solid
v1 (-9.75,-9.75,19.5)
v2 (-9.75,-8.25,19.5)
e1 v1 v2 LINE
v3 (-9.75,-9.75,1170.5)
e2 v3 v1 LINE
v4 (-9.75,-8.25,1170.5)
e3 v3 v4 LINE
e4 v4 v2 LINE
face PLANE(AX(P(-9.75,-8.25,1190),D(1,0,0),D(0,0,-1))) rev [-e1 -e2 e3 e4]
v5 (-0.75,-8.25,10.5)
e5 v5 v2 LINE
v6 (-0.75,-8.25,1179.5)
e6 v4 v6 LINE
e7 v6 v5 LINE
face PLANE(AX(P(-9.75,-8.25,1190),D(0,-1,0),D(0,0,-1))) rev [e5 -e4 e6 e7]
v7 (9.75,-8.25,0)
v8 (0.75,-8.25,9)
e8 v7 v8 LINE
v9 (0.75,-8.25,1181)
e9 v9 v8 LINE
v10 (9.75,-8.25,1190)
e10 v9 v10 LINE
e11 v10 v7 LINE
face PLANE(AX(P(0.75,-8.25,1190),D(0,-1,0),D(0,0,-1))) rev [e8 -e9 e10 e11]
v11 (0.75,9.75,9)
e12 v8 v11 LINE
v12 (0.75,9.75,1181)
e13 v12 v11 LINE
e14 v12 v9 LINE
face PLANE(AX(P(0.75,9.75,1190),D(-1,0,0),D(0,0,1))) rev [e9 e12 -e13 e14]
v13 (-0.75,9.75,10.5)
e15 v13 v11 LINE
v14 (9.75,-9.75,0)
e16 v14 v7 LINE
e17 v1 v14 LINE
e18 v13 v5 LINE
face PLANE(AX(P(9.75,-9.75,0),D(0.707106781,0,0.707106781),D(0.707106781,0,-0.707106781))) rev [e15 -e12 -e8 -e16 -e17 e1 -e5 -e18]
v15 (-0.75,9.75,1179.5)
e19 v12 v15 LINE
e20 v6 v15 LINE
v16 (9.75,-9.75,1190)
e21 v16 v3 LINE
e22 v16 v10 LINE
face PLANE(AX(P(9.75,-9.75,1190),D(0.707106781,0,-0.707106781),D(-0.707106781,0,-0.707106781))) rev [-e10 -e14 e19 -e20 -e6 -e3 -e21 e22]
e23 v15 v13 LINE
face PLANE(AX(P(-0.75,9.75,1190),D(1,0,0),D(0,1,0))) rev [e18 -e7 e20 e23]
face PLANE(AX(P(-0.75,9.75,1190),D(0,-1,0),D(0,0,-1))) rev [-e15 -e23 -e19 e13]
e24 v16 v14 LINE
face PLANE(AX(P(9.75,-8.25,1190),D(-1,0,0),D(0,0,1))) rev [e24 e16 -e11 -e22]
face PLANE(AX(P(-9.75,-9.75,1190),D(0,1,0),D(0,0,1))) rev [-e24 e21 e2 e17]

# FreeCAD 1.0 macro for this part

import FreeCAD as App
import Part
import Sketcher

doc = App.newDocument("Part")
body = doc.addObject("PartDesign::Body", "Body")

# Sketch on XY plane
sketch1 = body.newObject("Sketcher::SketchObject", "Sketch")
sketch1.AttachmentSupport = (doc.getObject("XY_Plane"), [""])
sketch1.MapMode = "FlatFace"
sketch1.addGeometry([
    Part.LineSegment(App.Vector(-9.8, -9.8, 0), App.Vector(9.8, -9.8, 0)),  # 0
    Part.LineSegment(App.Vector(9.8, -9.8, 0), App.Vector(9.8, -8.2, 0)),  # 1
    Part.LineSegment(App.Vector(9.8, -8.2, 0), App.Vector(0.8, -8.2, 0)),  # 2
    Part.LineSegment(App.Vector(0.8, -8.2, 0), App.Vector(0.8, 9.8, 0)),  # 3
    Part.LineSegment(App.Vector(0.8, 9.8, 0), App.Vector(-0.8, 9.8, 0)),  # 4
    Part.LineSegment(App.Vector(-0.8, 9.8, 0), App.Vector(-0.8, -8.2, 0)),  # 5
    Part.LineSegment(App.Vector(-0.8, -8.2, 0), App.Vector(-9.8, -8.2, 0)),  # 6
    Part.LineSegment(App.Vector(-9.8, -8.2, 0), App.Vector(-9.8, -9.8, 0)),  # 7
], False)
sketch1.addConstraint([
    Sketcher.Constraint("Coincident", 0, 2, 1, 1),
    Sketcher.Constraint("Coincident", 1, 2, 2, 1),
    Sketcher.Constraint("Coincident", 2, 2, 3, 1),
    Sketcher.Constraint("Coincident", 3, 2, 4, 1),
    Sketcher.Constraint("Coincident", 4, 2, 5, 1),
    Sketcher.Constraint("Coincident", 5, 2, 6, 1),
    Sketcher.Constraint("Coincident", 6, 2, 7, 1),
    Sketcher.Constraint("Coincident", 7, 2, 0, 1),
    Sketcher.Constraint("Horizontal", 0),
    Sketcher.Constraint("Vertical", 1),
    Sketcher.Constraint("Horizontal", 2),
    Sketcher.Constraint("Vertical", 3),
    Sketcher.Constraint("Horizontal", 4),
    Sketcher.Constraint("Vertical", 5),
    Sketcher.Constraint("Horizontal", 6),
    Sketcher.Constraint("Vertical", 7),
    Sketcher.Constraint("Symmetric", 2, 2, 5, 2, -2),
    Sketcher.Constraint("Equal", 2, 6),
    Sketcher.Constraint("Equal", 4, 1),
    Sketcher.Constraint("DistanceX", 2, 2, 2, 1, 9.0),
    Sketcher.Constraint("DistanceY", 3, 1, 3, 2, 18.0),
    Sketcher.Constraint("DistanceX", 0, 1, 0, 2, 19.5),
    Sketcher.Constraint("DistanceY", 0, 2, -1, 1, 9.75),
])
pad1 = body.newObject("PartDesign::Pad", "Pad")
pad1.Profile = sketch1
pad1.Length = 1190

# Sketch on XZ plane
sketch2 = body.newObject("Sketcher::SketchObject", "Sketch001")
sketch2.AttachmentSupport = (doc.getObject("XZ_Plane"), [""])
sketch2.MapMode = "FlatFace"
sketch2.AttachmentOffset = App.Placement(App.Vector(0, 0, 8.25), App.Rotation())
sketch2.addGeometry([
    Part.LineSegment(App.Vector(-9.8, 19.5, 0), App.Vector(9.8, 0, 0)),  # 0
    Part.LineSegment(App.Vector(9.8, 0, 0), App.Vector(9.8, -8.4, 0)),  # 1
    Part.LineSegment(App.Vector(9.8, -8.4, 0), App.Vector(-15.9, -8.4, 0)),  # 2
    Part.LineSegment(App.Vector(-15.9, -8.4, 0), App.Vector(-15.9, 19.5, 0)),  # 3
    Part.LineSegment(App.Vector(-15.9, 19.5, 0), App.Vector(-9.8, 19.5, 0)),  # 4
    Part.LineSegment(App.Vector(9.8, 1190, 0), App.Vector(-9.8, 1170.5, 0)),  # 5
    Part.LineSegment(App.Vector(-9.8, 1170.5, 0), App.Vector(-13.5, 1170.5, 0)),  # 6
    Part.LineSegment(App.Vector(-13.5, 1170.5, 0), App.Vector(-13.5, 1195.4, 0)),  # 7
    Part.LineSegment(App.Vector(-13.5, 1195.4, 0), App.Vector(9.8, 1195.4, 0)),  # 8
    Part.LineSegment(App.Vector(9.8, 1195.4, 0), App.Vector(9.8, 1190, 0)),  # 9
], False)
sketch2.addConstraint([
    Sketcher.Constraint("Coincident", 0, 2, 1, 1),
    Sketcher.Constraint("Coincident", 1, 2, 2, 1),
    Sketcher.Constraint("Coincident", 2, 2, 3, 1),
    Sketcher.Constraint("Coincident", 3, 2, 4, 1),
    Sketcher.Constraint("Coincident", 4, 2, 0, 1),
    Sketcher.Constraint("Coincident", 5, 2, 6, 1),
    Sketcher.Constraint("Coincident", 6, 2, 7, 1),
    Sketcher.Constraint("Coincident", 7, 2, 8, 1),
    Sketcher.Constraint("Coincident", 8, 2, 9, 1),
    Sketcher.Constraint("Coincident", 9, 2, 5, 1),
    Sketcher.Constraint("Vertical", 1),
    Sketcher.Constraint("Horizontal", 2),
    Sketcher.Constraint("Vertical", 3),
    Sketcher.Constraint("Horizontal", 4),
    Sketcher.Constraint("Horizontal", 6),
    Sketcher.Constraint("Vertical", 7),
    Sketcher.Constraint("Horizontal", 8),
    Sketcher.Constraint("Vertical", 9),
    Sketcher.Constraint("PointOnObject", 0, 2, -1),
    Sketcher.Constraint("Perpendicular", 0, 5),
    Sketcher.Constraint("Vertical", 4, 2, 5, 2),
    Sketcher.Constraint("Vertical", 1, 2, 8, 2),
    Sketcher.Constraint("Equal", 0, 5),
    Sketcher.Constraint("DistanceY", -1, 1, 9, 2, 1190.0),
    Sketcher.Constraint("DistanceY", 4, 2, 5, 2, 1151.0),
    Sketcher.Constraint("DistanceX", -1, 1, 0, 2, 9.75),
    Sketcher.Constraint("DistanceX", 2, 2, 2, 1, 25.624454),
    Sketcher.Constraint("DistanceX", 6, 2, 6, 1, 3.750903),
    Sketcher.Constraint("DistanceY", 1, 2, 1, 1, 8.440693),
    Sketcher.Constraint("DistanceY", 7, 1, 7, 2, 24.914044),
])
pocket1 = body.newObject("PartDesign::Pocket", "Pocket")
pocket1.Profile = sketch2
pocket1.Type = "ThroughAll"
pocket1.Midplane = True

doc.recompute()
